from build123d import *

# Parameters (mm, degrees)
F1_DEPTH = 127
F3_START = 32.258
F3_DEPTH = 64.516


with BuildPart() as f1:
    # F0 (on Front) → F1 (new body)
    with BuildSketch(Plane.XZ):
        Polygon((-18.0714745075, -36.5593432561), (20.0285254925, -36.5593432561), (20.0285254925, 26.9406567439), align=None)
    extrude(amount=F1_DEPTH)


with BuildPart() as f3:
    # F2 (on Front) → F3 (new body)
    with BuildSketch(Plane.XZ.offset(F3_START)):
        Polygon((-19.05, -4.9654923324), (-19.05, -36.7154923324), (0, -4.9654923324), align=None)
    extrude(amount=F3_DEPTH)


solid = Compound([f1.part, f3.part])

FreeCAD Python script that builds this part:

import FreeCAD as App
import Part
import Sketcher

V = App.Vector
Q = App.Units.Quantity


def add_polygon(sketch, points):
    """Adds a closed chain of lines whose ends are joined by coincident constraints."""
    first, n = sketch.GeometryCount, len(points)
    for a, b in zip(points, points[1:] + points[:1]):
        sketch.addGeometry(Part.LineSegment(App.Vector(*a, 0), App.Vector(*b, 0)), False)
    for i in range(n):
        sketch.addConstraint(Sketcher.Constraint("Coincident", first + i, 2, first + (i + 1) % n, 1))

doc = App.newDocument("Part")
body = doc.addObject("PartDesign::Body", "Body")

sketch1 = body.newObject("Sketcher::SketchObject", "Sketch")
sketch1.AttachmentSupport = (doc.getObject("XZ_Plane"), [""])
sketch1.MapMode = "FlatFace"
add_polygon(sketch1, [(-18, -37), (20, -37), (20, 27)])
sketch1.addConstraint([
    Sketcher.Constraint("Horizontal", 0),
    Sketcher.Constraint("Vertical", 1),
    Sketcher.Constraint("DistanceX", 0, 1, 0, 2, Q("1.5 in")),
    Sketcher.Constraint("DistanceY", 1, 1, 1, 2, Q("2.5 in")),
    Sketcher.Constraint("DistanceX", -1, 1, 0, 2, 20.028525),
    Sketcher.Constraint("DistanceY", 0, 2, -1, 1, 36.559343),
])
pad1 = body.newObject("PartDesign::Pad", "Pad")
pad1.Profile = sketch1
pad1.Length = Q("5 in")
body2 = doc.addObject("PartDesign::Body", "Body001")

sketch2 = body2.newObject("Sketcher::SketchObject", "Sketch001")
sketch2.AttachmentSupport = (doc.getObject("XZ_Plane001"), [""])
sketch2.MapMode = "FlatFace"
sketch2.AttachmentOffset = App.Placement(V(0, 0, 1.27 * 25.4), App.Rotation())
add_polygon(sketch2, [(-19, -5), (-19, -37), (0, -5)])
sketch2.addConstraint([
    Sketcher.Constraint("Vertical", 0),
    Sketcher.Constraint("Horizontal", 2),
    Sketcher.Constraint("PointOnObject", 1, 2, -2),
    Sketcher.Constraint("DistanceX", 2, 2, 2, 1, Q("0.75 in")),
    Sketcher.Constraint("DistanceY", 0, 2, 0, 1, Q("1.25 in")),
    Sketcher.Constraint("DistanceY", 0, 2, -1, 1, 36.715492),
])
pad2 = body2.newObject("PartDesign::Pad", "Pad001")
pad2.Profile = sketch2
pad2.Length = Q("2.54 in")

doc.recompute()
